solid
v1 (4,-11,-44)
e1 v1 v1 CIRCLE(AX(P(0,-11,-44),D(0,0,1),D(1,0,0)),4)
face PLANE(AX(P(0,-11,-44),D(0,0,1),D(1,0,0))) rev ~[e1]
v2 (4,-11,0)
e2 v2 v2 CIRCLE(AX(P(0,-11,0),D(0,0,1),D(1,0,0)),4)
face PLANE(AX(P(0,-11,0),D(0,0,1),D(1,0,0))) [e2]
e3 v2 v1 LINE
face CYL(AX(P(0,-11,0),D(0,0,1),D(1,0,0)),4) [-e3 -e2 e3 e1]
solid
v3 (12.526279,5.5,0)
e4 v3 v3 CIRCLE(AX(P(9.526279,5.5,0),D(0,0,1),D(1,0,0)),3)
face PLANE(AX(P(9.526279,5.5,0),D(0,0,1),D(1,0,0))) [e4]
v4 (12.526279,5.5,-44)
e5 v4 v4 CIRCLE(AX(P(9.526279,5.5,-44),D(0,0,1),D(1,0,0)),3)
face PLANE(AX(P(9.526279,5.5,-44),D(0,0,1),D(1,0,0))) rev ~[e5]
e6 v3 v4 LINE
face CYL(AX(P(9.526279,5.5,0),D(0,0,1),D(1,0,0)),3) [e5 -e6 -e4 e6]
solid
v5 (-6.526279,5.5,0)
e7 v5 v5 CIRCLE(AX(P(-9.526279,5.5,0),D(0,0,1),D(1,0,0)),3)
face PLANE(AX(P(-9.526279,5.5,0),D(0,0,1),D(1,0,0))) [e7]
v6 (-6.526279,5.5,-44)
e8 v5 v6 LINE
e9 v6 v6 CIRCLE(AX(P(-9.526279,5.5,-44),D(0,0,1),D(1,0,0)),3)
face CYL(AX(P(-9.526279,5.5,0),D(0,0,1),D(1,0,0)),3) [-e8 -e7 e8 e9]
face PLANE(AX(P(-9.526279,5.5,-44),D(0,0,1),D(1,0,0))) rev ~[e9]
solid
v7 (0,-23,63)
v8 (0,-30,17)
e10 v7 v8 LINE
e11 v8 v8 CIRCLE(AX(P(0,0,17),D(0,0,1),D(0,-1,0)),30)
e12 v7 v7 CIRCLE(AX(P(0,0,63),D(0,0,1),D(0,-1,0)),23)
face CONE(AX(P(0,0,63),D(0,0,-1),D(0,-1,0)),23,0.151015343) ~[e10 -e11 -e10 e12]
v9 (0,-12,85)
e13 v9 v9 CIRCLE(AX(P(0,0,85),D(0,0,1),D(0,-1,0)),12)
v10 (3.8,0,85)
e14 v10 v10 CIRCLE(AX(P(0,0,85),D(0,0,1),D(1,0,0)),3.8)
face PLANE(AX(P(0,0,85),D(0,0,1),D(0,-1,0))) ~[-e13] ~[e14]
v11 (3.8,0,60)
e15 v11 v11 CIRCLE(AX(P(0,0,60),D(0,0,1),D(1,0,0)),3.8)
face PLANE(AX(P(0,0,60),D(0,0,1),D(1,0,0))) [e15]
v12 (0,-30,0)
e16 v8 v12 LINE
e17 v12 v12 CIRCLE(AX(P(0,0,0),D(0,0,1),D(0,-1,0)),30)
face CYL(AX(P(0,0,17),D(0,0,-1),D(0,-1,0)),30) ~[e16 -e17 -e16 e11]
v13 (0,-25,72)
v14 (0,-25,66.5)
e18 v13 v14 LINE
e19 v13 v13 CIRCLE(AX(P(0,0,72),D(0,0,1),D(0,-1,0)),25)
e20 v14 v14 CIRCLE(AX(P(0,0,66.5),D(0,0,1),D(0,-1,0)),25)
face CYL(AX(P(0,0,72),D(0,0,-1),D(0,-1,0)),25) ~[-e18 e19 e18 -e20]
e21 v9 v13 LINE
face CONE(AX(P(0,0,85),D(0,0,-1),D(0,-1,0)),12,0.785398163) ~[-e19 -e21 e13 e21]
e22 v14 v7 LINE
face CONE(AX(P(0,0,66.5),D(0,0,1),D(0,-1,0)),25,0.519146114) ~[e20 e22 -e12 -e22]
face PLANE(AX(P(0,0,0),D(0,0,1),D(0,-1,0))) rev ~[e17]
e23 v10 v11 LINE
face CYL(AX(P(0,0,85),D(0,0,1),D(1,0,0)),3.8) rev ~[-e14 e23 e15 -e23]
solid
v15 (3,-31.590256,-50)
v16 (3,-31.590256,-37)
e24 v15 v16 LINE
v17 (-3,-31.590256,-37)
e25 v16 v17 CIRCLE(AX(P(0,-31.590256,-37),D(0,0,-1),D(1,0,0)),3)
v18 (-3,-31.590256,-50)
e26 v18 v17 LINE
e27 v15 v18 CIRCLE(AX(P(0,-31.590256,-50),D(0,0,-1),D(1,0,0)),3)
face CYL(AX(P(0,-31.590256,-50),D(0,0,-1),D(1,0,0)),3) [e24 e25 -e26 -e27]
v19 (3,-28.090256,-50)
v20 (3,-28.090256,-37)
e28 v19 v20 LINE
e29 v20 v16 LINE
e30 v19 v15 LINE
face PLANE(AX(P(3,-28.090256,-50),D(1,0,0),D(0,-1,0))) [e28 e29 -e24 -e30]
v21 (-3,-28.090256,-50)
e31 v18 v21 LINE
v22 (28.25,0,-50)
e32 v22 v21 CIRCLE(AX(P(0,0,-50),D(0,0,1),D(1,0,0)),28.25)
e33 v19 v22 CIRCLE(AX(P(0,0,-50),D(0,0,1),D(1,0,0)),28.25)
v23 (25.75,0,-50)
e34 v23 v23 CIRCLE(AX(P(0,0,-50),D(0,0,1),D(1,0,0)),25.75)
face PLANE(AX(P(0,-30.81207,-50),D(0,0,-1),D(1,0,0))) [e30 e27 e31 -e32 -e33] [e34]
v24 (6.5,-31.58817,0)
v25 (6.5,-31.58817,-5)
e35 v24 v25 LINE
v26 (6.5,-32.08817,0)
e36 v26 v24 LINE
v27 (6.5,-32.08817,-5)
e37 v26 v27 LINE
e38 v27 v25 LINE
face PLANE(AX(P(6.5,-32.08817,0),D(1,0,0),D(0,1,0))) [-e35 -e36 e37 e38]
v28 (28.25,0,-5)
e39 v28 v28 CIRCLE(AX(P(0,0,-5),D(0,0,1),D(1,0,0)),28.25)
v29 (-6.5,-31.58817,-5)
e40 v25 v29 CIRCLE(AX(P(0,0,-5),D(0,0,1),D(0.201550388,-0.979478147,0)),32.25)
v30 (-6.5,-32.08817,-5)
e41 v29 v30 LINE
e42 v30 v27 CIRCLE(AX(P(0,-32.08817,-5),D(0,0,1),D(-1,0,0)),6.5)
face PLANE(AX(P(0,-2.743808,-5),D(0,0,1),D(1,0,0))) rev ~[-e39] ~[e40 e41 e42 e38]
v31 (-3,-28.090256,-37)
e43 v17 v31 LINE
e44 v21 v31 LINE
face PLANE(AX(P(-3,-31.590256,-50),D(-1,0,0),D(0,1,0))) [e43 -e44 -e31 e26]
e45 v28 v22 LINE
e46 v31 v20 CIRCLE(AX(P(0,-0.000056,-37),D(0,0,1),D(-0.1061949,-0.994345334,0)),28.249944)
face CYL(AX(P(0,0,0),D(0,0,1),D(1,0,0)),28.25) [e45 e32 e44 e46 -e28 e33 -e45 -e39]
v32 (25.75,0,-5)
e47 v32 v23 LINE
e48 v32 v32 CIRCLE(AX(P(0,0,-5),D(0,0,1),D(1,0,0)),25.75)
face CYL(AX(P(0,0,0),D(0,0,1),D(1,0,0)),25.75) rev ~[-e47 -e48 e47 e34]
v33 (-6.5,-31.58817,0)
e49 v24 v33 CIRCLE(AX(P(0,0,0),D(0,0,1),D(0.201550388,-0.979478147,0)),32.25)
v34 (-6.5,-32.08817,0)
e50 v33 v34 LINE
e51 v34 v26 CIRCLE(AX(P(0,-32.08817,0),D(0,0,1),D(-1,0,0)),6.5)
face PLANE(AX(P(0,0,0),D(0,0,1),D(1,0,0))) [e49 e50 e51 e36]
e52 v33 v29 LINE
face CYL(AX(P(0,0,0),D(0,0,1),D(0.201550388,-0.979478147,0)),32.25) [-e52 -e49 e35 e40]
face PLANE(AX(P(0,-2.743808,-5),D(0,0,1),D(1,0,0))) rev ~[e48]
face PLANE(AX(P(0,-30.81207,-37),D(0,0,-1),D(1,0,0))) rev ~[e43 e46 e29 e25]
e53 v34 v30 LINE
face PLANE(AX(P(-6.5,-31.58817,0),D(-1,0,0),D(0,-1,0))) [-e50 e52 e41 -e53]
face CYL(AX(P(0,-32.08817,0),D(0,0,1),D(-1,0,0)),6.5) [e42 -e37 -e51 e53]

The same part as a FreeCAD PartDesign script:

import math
import FreeCAD as App
import Part
import Sketcher

V = App.Vector
Q = App.Units.Quantity

doc = App.newDocument("Part")
params = doc.addObject("Spreadsheet::Sheet", "Params")
for row, (alias, value) in enumerate([
    ("sketch1_radius", "6.5 mm"),
    ("sketch1_radius2", "32.25 mm"),
    ("sketch1_height", "0.5 mm"),
    ("pad1_length", "5 mm"),
    ("sketch2_diameter", "56.5 mm"),
    ("sketch2_diameter2", "51.5 mm"),
    ("pad2_length", "50 mm"),
    ("sketch3_radius", "3 mm"),
    ("sketch3_height", "3.5 mm"),
    ("pad3_length", "13 mm"),
    ("sketch4_diameter", "8 mm"),
    ("sketch4_diameter2", "6 mm"),
    ("pad4_length", "44 mm"),
    ("sketch5_width", "30 mm"),
    ("sketch5_width2", "12 mm"),
    ("sketch5_height", "85 mm"),
    ("sketch5_height2", "17 mm"),
    ("sketch5_height3", "5.5 mm"),
    ("revolution_angle", "360 deg"),
    ("sketch6_diameter", "7.6 mm"),
    ("pocket1_length", "25 mm"),
], start=1):
    params.set(f"A{row}", alias)
    params.set(f"B{row}", "=" + value)
    params.setAlias(f"B{row}", alias)

body = doc.addObject("PartDesign::Body", "Body")

# Sketch on XY plane
sketch1 = body.newObject("Sketcher::SketchObject", "Sketch")
sketch1.AttachmentSupport = (doc.getObject("XY_Plane"), [""])
sketch1.MapMode = "FlatFace"
sketch1.addGeometry(Part.LineSegment(V(6.5, -32.09, 0), V(6.5, -31.59, 0)), False)
sketch1.addGeometry(Part.ArcOfCircle(Part.Circle(V(0, 0, 0), V(0, 0, 1), 32.25), math.radians(-78), math.radians(258)), False)
sketch1.addGeometry(Part.LineSegment(V(-6.5, -31.59, 0), V(-6.5, -32.09, 0)), False)
sketch1.addGeometry(Part.ArcOfCircle(Part.Circle(V(0, -32.09, 0), V(0, 0, 1), 6.5), math.radians(180), math.radians(360)), False)
sketch1.addConstraint(Sketcher.Constraint("Coincident", 0, 2, 1, 1))
sketch1.addConstraint(Sketcher.Constraint("Coincident", 1, 2, 2, 1))
sketch1.addConstraint(Sketcher.Constraint("Tangent", 2, 2, 3, 1))
sketch1.addConstraint(Sketcher.Constraint("Tangent", 3, 2, 0, 1))
sketch1.addConstraint(Sketcher.Constraint("Vertical", 0))
sketch1.addConstraint(Sketcher.Constraint("Vertical", 2))
sketch1.addConstraint(Sketcher.Constraint("Coincident", 1, 3, -1, 1))
sketch1.addConstraint(Sketcher.Constraint("PointOnObject", 3, 3, -2))
sketch1.addConstraint(Sketcher.Constraint("Radius", 3, 6.5))
sketch1.addConstraint(Sketcher.Constraint("Radius", 1, 32.25))
sketch1.addConstraint(Sketcher.Constraint("DistanceY", 0, 1, 0, 2, 0.5))
sketch1.setExpression("Constraints[8]", "Params.sketch1_radius")
sketch1.setExpression("Constraints[9]", "Params.sketch1_radius2")
sketch1.setExpression("Constraints[10]", "Params.sketch1_height")
pad1 = body.newObject("PartDesign::Pad", "Pad")
pad1.Profile = sketch1
pad1.setExpression("Length", "Params.pad1_length")
pad1.Reversed = True

# Sketch on XY plane
sketch2 = body.newObject("Sketcher::SketchObject", "Sketch001")
sketch2.AttachmentSupport = (doc.getObject("XY_Plane"), [""])
sketch2.MapMode = "FlatFace"
sketch2.addGeometry(Part.Circle(V(0, 0, 0), V(0, 0, 1), 28), False)
sketch2.addGeometry(Part.Circle(V(0, 0, 0), V(0, 0, 1), 26), False)
sketch2.addConstraint(Sketcher.Constraint("Coincident", 0, 3, -1, 1))
sketch2.addConstraint(Sketcher.Constraint("Coincident", 1, 3, -1, 1))
sketch2.addConstraint(Sketcher.Constraint("Diameter", 0, 56.5))
sketch2.addConstraint(Sketcher.Constraint("Diameter", 1, 51.5))
sketch2.setExpression("Constraints[2]", "Params.sketch2_diameter")
sketch2.setExpression("Constraints[3]", "Params.sketch2_diameter2")
pad2 = body.newObject("PartDesign::Pad", "Pad001")
pad2.Profile = sketch2
pad2.setExpression("Length", "Params.pad2_length")
pad2.Reversed = True

# Sketch on XY plane
sketch3 = body.newObject("Sketcher::SketchObject", "Sketch002")
sketch3.AttachmentSupport = (doc.getObject("XY_Plane"), [""])
sketch3.MapMode = "FlatFace"
sketch3.AttachmentOffset = App.Placement(V(0, 0, -50), App.Rotation())
sketch3.addGeometry(Part.LineSegment(V(-3, -31.6, 0), V(-3, -28.1, 0)), False)
sketch3.addGeometry(Part.ArcOfCircle(Part.Circle(V(0, 0, 0), V(0, 0, 1), 28.2), math.radians(-96.1), math.radians(-83.9)), False)
sketch3.addGeometry(Part.LineSegment(V(3, -28.1, 0), V(3, -31.6, 0)), False)
sketch3.addGeometry(Part.ArcOfCircle(Part.Circle(V(0, -31.6, 0), V(0, 0, 1), 3), math.radians(180), math.radians(360)), False)
sketch3.addConstraint(Sketcher.Constraint("Coincident", 0, 2, 1, 1))
sketch3.addConstraint(Sketcher.Constraint("Coincident", 1, 2, 2, 1))
sketch3.addConstraint(Sketcher.Constraint("Tangent", 2, 2, 3, 2))
sketch3.addConstraint(Sketcher.Constraint("Tangent", 3, 1, 0, 1))
sketch3.addConstraint(Sketcher.Constraint("Vertical", 0))
sketch3.addConstraint(Sketcher.Constraint("Vertical", 2))
sketch3.addConstraint(Sketcher.Constraint("Symmetric", 0, 2, 1, 2, -2))
sketch3.addConstraint(Sketcher.Constraint("Radius", 3, 3.0))
sketch3.addConstraint(Sketcher.Constraint("DistanceY", 0, 1, 0, 2, 3.5))
sketch3.addConstraint(Sketcher.Constraint("Radius", 1, 28.249944))
sketch3.addConstraint(Sketcher.Constraint("DistanceY", 3, 3, -1, 1, 31.590256))
sketch3.setExpression("Constraints[7]", "Params.sketch3_radius")
sketch3.setExpression("Constraints[8]", "Params.sketch3_height")
pad3 = body.newObject("PartDesign::Pad", "Pad002")
pad3.Profile = sketch3
pad3.setExpression("Length", "Params.pad3_length")
body2 = doc.addObject("PartDesign::Body", "Body001")
body2.AllowCompound = True

# Sketch on XY plane
sketch4 = body2.newObject("Sketcher::SketchObject", "Sketch003")
sketch4.AttachmentSupport = (doc.getObject("XY_Plane001"), [""])
sketch4.MapMode = "FlatFace"
sketch4.addGeometry(Part.Circle(V(0, -11, 0), V(0, 0, 1), 4), False)
sketch4.addGeometry(Part.Circle(V(9.5, 5.5, 0), V(0, 0, 1), 3), False)
sketch4.addGeometry(Part.Circle(V(-9.5, 5.5, 0), V(0, 0, 1), 3), False)
sketch4.addConstraint(Sketcher.Constraint("Equal", 1, 2))
sketch4.addConstraint(Sketcher.Constraint("Symmetric", 1, 3, 2, 3, -2))
sketch4.addConstraint(Sketcher.Constraint("PointOnObject", 0, 3, -2))
sketch4.addConstraint(Sketcher.Constraint("Diameter", 0, 8.0))
sketch4.addConstraint(Sketcher.Constraint("Diameter", 1, 6.0))
sketch4.addConstraint(Sketcher.Constraint("DistanceY", 0, 3, -1, 1, 11.0))
sketch4.addConstraint(Sketcher.Constraint("DistanceY", -1, 1, 1, 3, 5.5))
sketch4.addConstraint(Sketcher.Constraint("DistanceX", -1, 1, 1, 3, 9.526279))
sketch4.setExpression("Constraints[3]", "Params.sketch4_diameter")
sketch4.setExpression("Constraints[4]", "Params.sketch4_diameter2")
pad4 = body2.newObject("PartDesign::Pad", "Pad003")
pad4.Profile = sketch4
pad4.setExpression("Length", "Params.pad4_length")
pad4.Reversed = True
body3 = doc.addObject("PartDesign::Body", "Body002")

# Sketch on YZ plane
sketch5 = body3.newObject("Sketcher::SketchObject", "Sketch004")
sketch5.AttachmentSupport = (doc.getObject("YZ_Plane002"), [""])
sketch5.MapMode = "FlatFace"
sketch5.addGeometry(Part.LineSegment(V(-30, 0, 0), V(0, 0, 0)), False)
sketch5.addGeometry(Part.LineSegment(V(0, 0, 0), V(0, 85, 0)), False)
sketch5.addGeometry(Part.LineSegment(V(0, 85, 0), V(-12, 85, 0)), False)
sketch5.addGeometry(Part.LineSegment(V(-12, 85, 0), V(-25, 72, 0)), False)
sketch5.addGeometry(Part.LineSegment(V(-25, 72, 0), V(-25, 66.5, 0)), False)
sketch5.addGeometry(Part.LineSegment(V(-25, 66.5, 0), V(-23, 63, 0)), False)
sketch5.addGeometry(Part.LineSegment(V(-23, 63, 0), V(-30, 17, 0)), False)
sketch5.addGeometry(Part.LineSegment(V(-30, 17, 0), V(-30, 0, 0)), False)
sketch5.addConstraint(Sketcher.Constraint("Coincident", 0, 2, 1, 1))
sketch5.addConstraint(Sketcher.Constraint("Coincident", 1, 2, 2, 1))
sketch5.addConstraint(Sketcher.Constraint("Coincident", 2, 2, 3, 1))
sketch5.addConstraint(Sketcher.Constraint("Coincident", 3, 2, 4, 1))
sketch5.addConstraint(Sketcher.Constraint("Coincident", 4, 2, 5, 1))
sketch5.addConstraint(Sketcher.Constraint("Coincident", 5, 2, 6, 1))
sketch5.addConstraint(Sketcher.Constraint("Coincident", 6, 2, 7, 1))
sketch5.addConstraint(Sketcher.Constraint("Coincident", 7, 2, 0, 1))
sketch5.addConstraint(Sketcher.Constraint("Horizontal", 0))
sketch5.addConstraint(Sketcher.Constraint("Vertical", 1))
sketch5.addConstraint(Sketcher.Constraint("Horizontal", 2))
sketch5.addConstraint(Sketcher.Constraint("Vertical", 4))
sketch5.addConstraint(Sketcher.Constraint("Vertical", 7))
sketch5.addConstraint(Sketcher.Constraint("Coincident", 0, 2, -1, 1))
sketch5.addConstraint(Sketcher.Constraint("DistanceX", 0, 1, 0, 2, 30.0))
sketch5.addConstraint(Sketcher.Constraint("DistanceX", 2, 2, 2, 1, 12.0))
sketch5.addConstraint(Sketcher.Constraint("DistanceY", 1, 1, 1, 2, 85.0))
sketch5.addConstraint(Sketcher.Constraint("DistanceY", 7, 2, 7, 1, 17.0))
sketch5.addConstraint(Sketcher.Constraint("Angle", 3, Q("-135 deg")))
sketch5.addConstraint(Sketcher.Constraint("DistanceY", 4, 2, 4, 1, 5.5))
sketch5.addConstraint(Sketcher.Constraint("DistanceX", 3, 2, -1, 1, 25.0))
sketch5.addConstraint(Sketcher.Constraint("DistanceX", 5, 2, -1, 1, 23.0))
sketch5.addConstraint(Sketcher.Constraint("DistanceY", -1, 1, 5, 2, 63.0))
sketch5.setExpression("Constraints[14]", "Params.sketch5_width")
sketch5.setExpression("Constraints[15]", "Params.sketch5_width2")
sketch5.setExpression("Constraints[16]", "Params.sketch5_height")
sketch5.setExpression("Constraints[17]", "Params.sketch5_height2")
sketch5.setExpression("Constraints[19]", "Params.sketch5_height3")
revolution = body3.newObject("PartDesign::Revolution", "Revolution")
revolution.Profile = sketch5
revolution.ReferenceAxis = (sketch5, ["V_Axis"])
revolution.setExpression("Angle", "Params.revolution_angle")

# Sketch on XY plane
sketch6 = body3.newObject("Sketcher::SketchObject", "Sketch005")
sketch6.AttachmentSupport = (doc.getObject("XY_Plane002"), [""])
sketch6.MapMode = "FlatFace"
sketch6.AttachmentOffset = App.Placement(V(0, 0, 85), App.Rotation())
sketch6.addGeometry(Part.Circle(V(0, 0, 0), V(0, 0, 1), 3.8), False)
sketch6.addConstraint(Sketcher.Constraint("Coincident", 0, 3, -1, 1))
sketch6.addConstraint(Sketcher.Constraint("Diameter", 0, 7.6))
sketch6.setExpression("Constraints[1]", "Params.sketch6_diameter")
pocket1 = body3.newObject("PartDesign::Pocket", "Pocket")
pocket1.Profile = sketch6
pocket1.setExpression("Length", "Params.pocket1_length")

doc.recompute()
